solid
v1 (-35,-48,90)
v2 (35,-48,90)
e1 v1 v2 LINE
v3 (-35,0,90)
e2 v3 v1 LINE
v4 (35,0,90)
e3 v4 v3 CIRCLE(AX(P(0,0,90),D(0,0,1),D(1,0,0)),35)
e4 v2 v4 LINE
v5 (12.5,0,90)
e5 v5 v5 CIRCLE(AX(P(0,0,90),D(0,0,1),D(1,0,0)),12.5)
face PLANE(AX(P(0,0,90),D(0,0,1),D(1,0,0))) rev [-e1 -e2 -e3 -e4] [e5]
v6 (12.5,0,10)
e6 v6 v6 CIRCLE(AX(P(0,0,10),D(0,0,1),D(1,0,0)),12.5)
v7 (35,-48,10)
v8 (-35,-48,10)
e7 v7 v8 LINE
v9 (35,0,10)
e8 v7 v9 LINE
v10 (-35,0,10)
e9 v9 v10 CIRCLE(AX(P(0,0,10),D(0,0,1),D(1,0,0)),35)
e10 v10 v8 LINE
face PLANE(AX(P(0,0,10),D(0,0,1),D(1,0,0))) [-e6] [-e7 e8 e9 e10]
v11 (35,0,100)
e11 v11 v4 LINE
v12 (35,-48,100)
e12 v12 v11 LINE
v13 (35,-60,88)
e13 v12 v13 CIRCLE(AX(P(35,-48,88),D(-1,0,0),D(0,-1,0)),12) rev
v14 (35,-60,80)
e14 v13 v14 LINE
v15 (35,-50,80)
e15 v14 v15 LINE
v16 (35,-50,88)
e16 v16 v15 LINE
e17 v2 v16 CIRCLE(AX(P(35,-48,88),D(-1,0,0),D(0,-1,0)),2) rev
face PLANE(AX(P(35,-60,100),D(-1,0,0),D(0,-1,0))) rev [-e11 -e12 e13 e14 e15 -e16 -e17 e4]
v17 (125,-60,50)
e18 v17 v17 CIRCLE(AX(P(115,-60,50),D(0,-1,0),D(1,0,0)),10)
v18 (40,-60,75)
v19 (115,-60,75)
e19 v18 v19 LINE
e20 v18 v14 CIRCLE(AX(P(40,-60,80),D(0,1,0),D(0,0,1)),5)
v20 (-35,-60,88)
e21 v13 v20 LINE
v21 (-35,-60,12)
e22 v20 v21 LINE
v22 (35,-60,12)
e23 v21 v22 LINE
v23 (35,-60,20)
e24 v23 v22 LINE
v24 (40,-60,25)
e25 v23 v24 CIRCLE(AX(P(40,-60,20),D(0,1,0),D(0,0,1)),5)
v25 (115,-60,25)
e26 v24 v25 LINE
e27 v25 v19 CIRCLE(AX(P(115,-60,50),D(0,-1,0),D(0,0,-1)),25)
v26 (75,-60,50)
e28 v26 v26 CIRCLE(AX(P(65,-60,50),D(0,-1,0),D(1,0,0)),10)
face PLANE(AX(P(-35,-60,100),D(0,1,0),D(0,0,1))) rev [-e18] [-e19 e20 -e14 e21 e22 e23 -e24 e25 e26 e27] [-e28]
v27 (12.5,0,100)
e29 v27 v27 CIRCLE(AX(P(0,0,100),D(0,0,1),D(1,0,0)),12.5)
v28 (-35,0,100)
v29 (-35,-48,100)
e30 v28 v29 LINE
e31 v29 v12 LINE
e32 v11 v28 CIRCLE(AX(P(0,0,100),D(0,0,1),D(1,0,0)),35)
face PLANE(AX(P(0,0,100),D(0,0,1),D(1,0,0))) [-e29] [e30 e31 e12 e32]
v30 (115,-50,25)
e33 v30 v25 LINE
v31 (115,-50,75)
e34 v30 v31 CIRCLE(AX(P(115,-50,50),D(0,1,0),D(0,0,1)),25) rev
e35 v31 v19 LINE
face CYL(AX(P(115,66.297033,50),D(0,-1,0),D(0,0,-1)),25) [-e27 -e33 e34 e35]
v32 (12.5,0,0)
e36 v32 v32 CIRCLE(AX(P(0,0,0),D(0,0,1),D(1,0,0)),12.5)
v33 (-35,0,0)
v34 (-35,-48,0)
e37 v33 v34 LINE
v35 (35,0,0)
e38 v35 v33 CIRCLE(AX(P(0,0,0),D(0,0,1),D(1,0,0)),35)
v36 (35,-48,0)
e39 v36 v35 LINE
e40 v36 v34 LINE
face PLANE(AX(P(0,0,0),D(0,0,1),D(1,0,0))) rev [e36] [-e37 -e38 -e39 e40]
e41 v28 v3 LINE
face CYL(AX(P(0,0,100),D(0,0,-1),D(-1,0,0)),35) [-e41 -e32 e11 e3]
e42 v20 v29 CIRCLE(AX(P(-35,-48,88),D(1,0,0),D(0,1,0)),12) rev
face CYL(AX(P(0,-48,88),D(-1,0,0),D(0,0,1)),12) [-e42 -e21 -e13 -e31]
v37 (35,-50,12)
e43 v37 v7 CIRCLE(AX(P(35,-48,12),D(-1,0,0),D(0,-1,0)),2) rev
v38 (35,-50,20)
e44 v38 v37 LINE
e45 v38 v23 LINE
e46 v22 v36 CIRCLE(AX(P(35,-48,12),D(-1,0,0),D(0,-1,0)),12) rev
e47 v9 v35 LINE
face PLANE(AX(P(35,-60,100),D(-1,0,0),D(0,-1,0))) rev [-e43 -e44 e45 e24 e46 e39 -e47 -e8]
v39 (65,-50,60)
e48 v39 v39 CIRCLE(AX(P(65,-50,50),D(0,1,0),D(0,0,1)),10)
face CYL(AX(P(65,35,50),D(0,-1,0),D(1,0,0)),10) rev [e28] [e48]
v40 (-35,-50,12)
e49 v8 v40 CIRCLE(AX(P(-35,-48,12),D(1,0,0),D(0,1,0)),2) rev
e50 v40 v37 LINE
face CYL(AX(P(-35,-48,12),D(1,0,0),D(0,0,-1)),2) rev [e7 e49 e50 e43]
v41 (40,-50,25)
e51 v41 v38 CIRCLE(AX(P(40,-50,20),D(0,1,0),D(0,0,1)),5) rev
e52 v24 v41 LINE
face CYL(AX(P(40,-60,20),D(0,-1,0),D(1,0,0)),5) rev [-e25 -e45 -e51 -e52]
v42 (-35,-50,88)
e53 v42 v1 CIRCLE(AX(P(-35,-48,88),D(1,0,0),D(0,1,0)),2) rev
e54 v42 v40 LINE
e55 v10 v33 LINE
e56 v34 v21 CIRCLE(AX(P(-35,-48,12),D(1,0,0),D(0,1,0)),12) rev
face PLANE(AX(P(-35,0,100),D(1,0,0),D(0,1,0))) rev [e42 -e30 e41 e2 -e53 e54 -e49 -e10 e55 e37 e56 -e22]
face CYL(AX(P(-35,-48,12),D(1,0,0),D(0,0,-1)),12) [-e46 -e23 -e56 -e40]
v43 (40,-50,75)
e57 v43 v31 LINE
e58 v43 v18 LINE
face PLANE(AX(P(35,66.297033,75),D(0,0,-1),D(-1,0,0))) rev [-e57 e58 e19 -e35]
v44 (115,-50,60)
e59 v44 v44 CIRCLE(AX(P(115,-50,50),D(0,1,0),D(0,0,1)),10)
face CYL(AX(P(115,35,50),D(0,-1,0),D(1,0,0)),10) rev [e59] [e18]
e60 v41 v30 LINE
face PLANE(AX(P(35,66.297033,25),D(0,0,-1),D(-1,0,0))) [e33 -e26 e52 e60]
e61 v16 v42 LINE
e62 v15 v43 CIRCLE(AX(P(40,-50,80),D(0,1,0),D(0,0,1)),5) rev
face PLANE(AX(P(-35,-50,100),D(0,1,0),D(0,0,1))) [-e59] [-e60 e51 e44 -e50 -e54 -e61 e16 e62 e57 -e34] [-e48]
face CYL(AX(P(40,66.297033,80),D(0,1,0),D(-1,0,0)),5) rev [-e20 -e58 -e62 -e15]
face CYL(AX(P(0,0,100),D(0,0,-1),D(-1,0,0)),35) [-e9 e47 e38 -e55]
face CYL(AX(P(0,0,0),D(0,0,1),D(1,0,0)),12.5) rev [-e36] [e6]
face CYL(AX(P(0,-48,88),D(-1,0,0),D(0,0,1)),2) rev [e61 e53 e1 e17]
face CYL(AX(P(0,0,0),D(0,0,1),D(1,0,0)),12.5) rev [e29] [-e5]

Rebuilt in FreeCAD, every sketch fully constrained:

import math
import FreeCAD as App
import Part
import Sketcher
from FreeCAD import Vector
Q = App.Units.Quantity


def edges_at(feature, points):
    """Names of the edges that pass closest to the given points."""
    edges = feature.Shape.Edges
    near = lambda p: min(range(len(edges)), key=lambda i: edges[i].distToShape(Part.Vertex(*p))[0])
    return sorted({f"Edge{near(p) + 1}" for p in points})


def faces_at(feature, points):
    """Names of the faces that lie closest to the given points."""
    faces = feature.Shape.Faces
    near = lambda p: min(range(len(faces)), key=lambda i: faces[i].distToShape(Part.Vertex(*p))[0])
    return sorted({f"Face{near(p) + 1}" for p in points})

doc = App.newDocument("Part")
body = doc.addObject("PartDesign::Body", "Body")

# Sketch on XY plane
sketch1 = doc.addObject("Sketcher::SketchObject", "Sketch")
body.addObject(sketch1)
sketch1.AttachmentSupport = (doc.XY_Plane, [""])
sketch1.MapMode = "FlatFace"
sketch1.addGeometry(Part.LineSegment(Vector(-35, 0, 0), Vector(-35, -60, 0)), False)
sketch1.addGeometry(Part.LineSegment(Vector(-35, -60, 0), Vector(35, -60, 0)), False)
sketch1.addGeometry(Part.LineSegment(Vector(35, -60, 0), Vector(35, 0, 0)), False)
sketch1.addGeometry(Part.ArcOfCircle(Part.Circle(Vector(0, 0, 0), Vector(0, 0, 1), 35), math.radians(0), math.radians(180)), False)
sketch1.addConstraint(Sketcher.Constraint("Coincident", 0, 2, 1, 1))
sketch1.addConstraint(Sketcher.Constraint("Coincident", 1, 2, 2, 1))
sketch1.addConstraint(Sketcher.Constraint("Tangent", 2, 2, 3, 1))
sketch1.addConstraint(Sketcher.Constraint("Tangent", 3, 2, 0, 1))
sketch1.addConstraint(Sketcher.Constraint("Vertical", 0))
sketch1.addConstraint(Sketcher.Constraint("Horizontal", 1))
sketch1.addConstraint(Sketcher.Constraint("Vertical", 2))
sketch1.addConstraint(Sketcher.Constraint("Coincident", 3, 3, -1, 1))
sketch1.addConstraint(Sketcher.Constraint("Radius", 3, Q("35 mm")))
sketch1.addConstraint(Sketcher.Constraint("DistanceY", 0, 2, 0, 1, Q("60 mm")))
pad1 = doc.addObject("PartDesign::Pad", "Pad")
body.addObject(pad1)
pad1.Profile = sketch1
pad1.Length = 100
doc.recompute()

fillet = doc.addObject("PartDesign::Fillet", "Fillet")
body.addObject(fillet)
fillet.Base = (pad1, edges_at(pad1, [(0, -60, 100), (0, -60, 0)]))
fillet.Radius = 12
doc.recompute()

thickness = doc.addObject("PartDesign::Thickness", "Thickness")
body.addObject(thickness)
thickness.Base = (fillet, faces_at(fillet, [(35, -30, 50), (-35, -30, 50), (0, 35, 50)]))
thickness.Value = 10
thickness.Reversed = True
thickness.Join = "Intersection"

# Sketch on XY plane
sketch2 = doc.addObject("Sketcher::SketchObject", "Sketch001")
body.addObject(sketch2)
sketch2.AttachmentSupport = (doc.XY_Plane, [""])
sketch2.MapMode = "FlatFace"
sketch2.AttachmentOffset = App.Placement(Vector(0, 0, 100), App.Rotation())
sketch2.addGeometry(Part.Circle(Vector(0, 0, 0), Vector(0, 0, 1), 12), False)
sketch2.addConstraint(Sketcher.Constraint("Coincident", 0, 3, -1, 1))
sketch2.addConstraint(Sketcher.Constraint("Diameter", 0, Q("25 mm")))
pocket1 = doc.addObject("PartDesign::Pocket", "Pocket")
body.addObject(pocket1)
pocket1.Profile = sketch2
pocket1.Type = "ThroughAll"

# Sketch on XZ plane
sketch3 = doc.addObject("Sketcher::SketchObject", "Sketch002")
body.addObject(sketch3)
sketch3.AttachmentSupport = (doc.XZ_Plane, [""])
sketch3.MapMode = "FlatFace"
sketch3.AttachmentOffset = App.Placement(Vector(0, 0, 60), App.Rotation())
sketch3.addGeometry(Part.LineSegment(Vector(35, 25, 0), Vector(115, 25, 0)), False)
sketch3.addGeometry(Part.ArcOfCircle(Part.Circle(Vector(115, 50, 0), Vector(0, 0, 1), 25), math.radians(-90), math.radians(90)), False)
sketch3.addGeometry(Part.LineSegment(Vector(115, 75, 0), Vector(35, 75, 0)), False)
sketch3.addGeometry(Part.LineSegment(Vector(35, 75, 0), Vector(35, 25, 0)), False)
sketch3.addConstraint(Sketcher.Constraint("Tangent", 0, 2, 1, 1))
sketch3.addConstraint(Sketcher.Constraint("Tangent", 1, 2, 2, 1))
sketch3.addConstraint(Sketcher.Constraint("Coincident", 2, 2, 3, 1))
sketch3.addConstraint(Sketcher.Constraint("Coincident", 3, 2, 0, 1))
sketch3.addConstraint(Sketcher.Constraint("Horizontal", 0))
sketch3.addConstraint(Sketcher.Constraint("Horizontal", 2))
sketch3.addConstraint(Sketcher.Constraint("Vertical", 3))
sketch3.addConstraint(Sketcher.Constraint("Radius", 1, Q("25 mm")))
sketch3.addConstraint(Sketcher.Constraint("DistanceX", 0, 1, 0, 2, Q("80 mm")))
sketch3.addConstraint(Sketcher.Constraint("DistanceX", -1, 1, 1, 3, Q("115 mm")))
sketch3.addConstraint(Sketcher.Constraint("DistanceY", -1, 1, 1, 3, Q("50 mm")))
pad2 = doc.addObject("PartDesign::Pad", "Pad001")
body.addObject(pad2)
pad2.Profile = sketch3
pad2.Length = 10
pad2.Reversed = True

# Sketch on XZ plane
sketch4 = doc.addObject("Sketcher::SketchObject", "Sketch003")
body.addObject(sketch4)
sketch4.AttachmentSupport = (doc.XZ_Plane, [""])
sketch4.MapMode = "FlatFace"
sketch4.AttachmentOffset = App.Placement(Vector(0, 0, 60), App.Rotation())
sketch4.addGeometry(Part.Circle(Vector(65, 50, 0), Vector(0, 0, 1), 10), False)
sketch4.addGeometry(Part.Circle(Vector(115, 50, 0), Vector(0, 0, 1), 10), False)
sketch4.addConstraint(Sketcher.Constraint("Equal", 0, 1))
sketch4.addConstraint(Sketcher.Constraint("Horizontal", 0, 3, 1, 3))
sketch4.addConstraint(Sketcher.Constraint("Diameter", 0, Q("20 mm")))
sketch4.addConstraint(Sketcher.Constraint("DistanceX", -1, 1, 0, 3, Q("65 mm")))
sketch4.addConstraint(Sketcher.Constraint("DistanceY", -1, 1, 0, 3, Q("50 mm")))
sketch4.addConstraint(Sketcher.Constraint("DistanceX", -1, 1, 1, 3, Q("115 mm")))
pocket2 = doc.addObject("PartDesign::Pocket", "Pocket001")
body.addObject(pocket2)
pocket2.Profile = sketch4
pocket2.Type = "ThroughAll"
doc.recompute()

fillet2 = doc.addObject("PartDesign::Fillet", "Fillet001")
body.addObject(fillet2)
fillet2.Base = (pocket2, edges_at(pocket2, [(35, -55, 75), (35, -55, 25)]))
fillet2.Radius = 5

doc.recompute()
